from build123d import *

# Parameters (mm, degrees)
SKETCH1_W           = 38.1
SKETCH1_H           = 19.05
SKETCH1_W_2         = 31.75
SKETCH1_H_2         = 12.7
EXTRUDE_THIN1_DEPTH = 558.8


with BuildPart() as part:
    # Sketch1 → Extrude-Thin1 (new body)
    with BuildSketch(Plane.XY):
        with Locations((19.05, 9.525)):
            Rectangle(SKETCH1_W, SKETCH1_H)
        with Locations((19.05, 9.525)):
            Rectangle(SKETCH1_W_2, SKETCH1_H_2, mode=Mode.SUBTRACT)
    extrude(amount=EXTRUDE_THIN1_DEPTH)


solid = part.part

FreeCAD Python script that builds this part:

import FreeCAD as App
import Part
import Sketcher
Q = App.Units.Quantity


def add_polygon(sketch, points):
    """Adds a closed chain of lines whose ends are joined by coincident constraints."""
    first, n = sketch.GeometryCount, len(points)
    for a, b in zip(points, points[1:] + points[:1]):
        sketch.addGeometry(Part.LineSegment(App.Vector(*a, 0), App.Vector(*b, 0)), False)
    for i in range(n):
        sketch.addConstraint(Sketcher.Constraint("Coincident", first + i, 2, first + (i + 1) % n, 1))

doc = App.newDocument("Part")
params = doc.addObject("Spreadsheet::Sheet", "Params")
for row, (alias, value) in enumerate([
    ("sketch1_width", "1.5 in"),
    ("sketch1_height", "0.5 in"),
    ("sketch1_width2", "1.25 in"),
    ("sketch1_height2", "0.75 in"),
    ("pad1_length", "22 in"),
], start=1):
    params.set(f"A{row}", alias)
    params.set(f"B{row}", "=" + value)
    params.setAlias(f"B{row}", alias)

body = doc.addObject("PartDesign::Body", "Body")

sketch1 = body.newObject("Sketcher::SketchObject", "Sketch")
sketch1.AttachmentSupport = (doc.getObject("XY_Plane"), [""])
sketch1.MapMode = "FlatFace"
add_polygon(sketch1, [(0, 19.05), (0, 0), (38.1, 0), (38.1, 19.05)])
add_polygon(sketch1, [(34.925, 3.175), (3.175, 3.175), (3.175, 15.875), (34.925, 15.875)])
sketch1.addConstraint([
    Sketcher.Constraint("Vertical", 0),
    Sketcher.Constraint("Horizontal", 1),
    Sketcher.Constraint("Vertical", 2),
    Sketcher.Constraint("Horizontal", 3),
    Sketcher.Constraint("Horizontal", 4),
    Sketcher.Constraint("Vertical", 5),
    Sketcher.Constraint("Horizontal", 6),
    Sketcher.Constraint("Vertical", 7),
    Sketcher.Constraint("Coincident", 0, 2, -1, 1),
    Sketcher.Constraint("DistanceX", 1, 1, 1, 2, Q("1.5 in")),
    Sketcher.Constraint("DistanceY", 5, 1, 5, 2, Q("0.5 in")),
    Sketcher.Constraint("DistanceX", 4, 2, 4, 1, Q("1.25 in")),
    Sketcher.Constraint("DistanceY", 0, 2, 0, 1, Q("0.75 in")),
    Sketcher.Constraint("DistanceX", -1, 1, 4, 2, Q("0.125 in")),
    Sketcher.Constraint("DistanceY", -1, 1, 4, 2, Q("0.125 in")),
])
sketch1.setExpression("Constraints[17]", "Params.sketch1_width")
sketch1.setExpression("Constraints[18]", "Params.sketch1_height")
sketch1.setExpression("Constraints[19]", "Params.sketch1_width2")
sketch1.setExpression("Constraints[20]", "Params.sketch1_height2")
pad1 = body.newObject("PartDesign::Pad", "Pad")
pad1.Profile = sketch1
pad1.setExpression("Length", "Params.pad1_length")

doc.recompute()
